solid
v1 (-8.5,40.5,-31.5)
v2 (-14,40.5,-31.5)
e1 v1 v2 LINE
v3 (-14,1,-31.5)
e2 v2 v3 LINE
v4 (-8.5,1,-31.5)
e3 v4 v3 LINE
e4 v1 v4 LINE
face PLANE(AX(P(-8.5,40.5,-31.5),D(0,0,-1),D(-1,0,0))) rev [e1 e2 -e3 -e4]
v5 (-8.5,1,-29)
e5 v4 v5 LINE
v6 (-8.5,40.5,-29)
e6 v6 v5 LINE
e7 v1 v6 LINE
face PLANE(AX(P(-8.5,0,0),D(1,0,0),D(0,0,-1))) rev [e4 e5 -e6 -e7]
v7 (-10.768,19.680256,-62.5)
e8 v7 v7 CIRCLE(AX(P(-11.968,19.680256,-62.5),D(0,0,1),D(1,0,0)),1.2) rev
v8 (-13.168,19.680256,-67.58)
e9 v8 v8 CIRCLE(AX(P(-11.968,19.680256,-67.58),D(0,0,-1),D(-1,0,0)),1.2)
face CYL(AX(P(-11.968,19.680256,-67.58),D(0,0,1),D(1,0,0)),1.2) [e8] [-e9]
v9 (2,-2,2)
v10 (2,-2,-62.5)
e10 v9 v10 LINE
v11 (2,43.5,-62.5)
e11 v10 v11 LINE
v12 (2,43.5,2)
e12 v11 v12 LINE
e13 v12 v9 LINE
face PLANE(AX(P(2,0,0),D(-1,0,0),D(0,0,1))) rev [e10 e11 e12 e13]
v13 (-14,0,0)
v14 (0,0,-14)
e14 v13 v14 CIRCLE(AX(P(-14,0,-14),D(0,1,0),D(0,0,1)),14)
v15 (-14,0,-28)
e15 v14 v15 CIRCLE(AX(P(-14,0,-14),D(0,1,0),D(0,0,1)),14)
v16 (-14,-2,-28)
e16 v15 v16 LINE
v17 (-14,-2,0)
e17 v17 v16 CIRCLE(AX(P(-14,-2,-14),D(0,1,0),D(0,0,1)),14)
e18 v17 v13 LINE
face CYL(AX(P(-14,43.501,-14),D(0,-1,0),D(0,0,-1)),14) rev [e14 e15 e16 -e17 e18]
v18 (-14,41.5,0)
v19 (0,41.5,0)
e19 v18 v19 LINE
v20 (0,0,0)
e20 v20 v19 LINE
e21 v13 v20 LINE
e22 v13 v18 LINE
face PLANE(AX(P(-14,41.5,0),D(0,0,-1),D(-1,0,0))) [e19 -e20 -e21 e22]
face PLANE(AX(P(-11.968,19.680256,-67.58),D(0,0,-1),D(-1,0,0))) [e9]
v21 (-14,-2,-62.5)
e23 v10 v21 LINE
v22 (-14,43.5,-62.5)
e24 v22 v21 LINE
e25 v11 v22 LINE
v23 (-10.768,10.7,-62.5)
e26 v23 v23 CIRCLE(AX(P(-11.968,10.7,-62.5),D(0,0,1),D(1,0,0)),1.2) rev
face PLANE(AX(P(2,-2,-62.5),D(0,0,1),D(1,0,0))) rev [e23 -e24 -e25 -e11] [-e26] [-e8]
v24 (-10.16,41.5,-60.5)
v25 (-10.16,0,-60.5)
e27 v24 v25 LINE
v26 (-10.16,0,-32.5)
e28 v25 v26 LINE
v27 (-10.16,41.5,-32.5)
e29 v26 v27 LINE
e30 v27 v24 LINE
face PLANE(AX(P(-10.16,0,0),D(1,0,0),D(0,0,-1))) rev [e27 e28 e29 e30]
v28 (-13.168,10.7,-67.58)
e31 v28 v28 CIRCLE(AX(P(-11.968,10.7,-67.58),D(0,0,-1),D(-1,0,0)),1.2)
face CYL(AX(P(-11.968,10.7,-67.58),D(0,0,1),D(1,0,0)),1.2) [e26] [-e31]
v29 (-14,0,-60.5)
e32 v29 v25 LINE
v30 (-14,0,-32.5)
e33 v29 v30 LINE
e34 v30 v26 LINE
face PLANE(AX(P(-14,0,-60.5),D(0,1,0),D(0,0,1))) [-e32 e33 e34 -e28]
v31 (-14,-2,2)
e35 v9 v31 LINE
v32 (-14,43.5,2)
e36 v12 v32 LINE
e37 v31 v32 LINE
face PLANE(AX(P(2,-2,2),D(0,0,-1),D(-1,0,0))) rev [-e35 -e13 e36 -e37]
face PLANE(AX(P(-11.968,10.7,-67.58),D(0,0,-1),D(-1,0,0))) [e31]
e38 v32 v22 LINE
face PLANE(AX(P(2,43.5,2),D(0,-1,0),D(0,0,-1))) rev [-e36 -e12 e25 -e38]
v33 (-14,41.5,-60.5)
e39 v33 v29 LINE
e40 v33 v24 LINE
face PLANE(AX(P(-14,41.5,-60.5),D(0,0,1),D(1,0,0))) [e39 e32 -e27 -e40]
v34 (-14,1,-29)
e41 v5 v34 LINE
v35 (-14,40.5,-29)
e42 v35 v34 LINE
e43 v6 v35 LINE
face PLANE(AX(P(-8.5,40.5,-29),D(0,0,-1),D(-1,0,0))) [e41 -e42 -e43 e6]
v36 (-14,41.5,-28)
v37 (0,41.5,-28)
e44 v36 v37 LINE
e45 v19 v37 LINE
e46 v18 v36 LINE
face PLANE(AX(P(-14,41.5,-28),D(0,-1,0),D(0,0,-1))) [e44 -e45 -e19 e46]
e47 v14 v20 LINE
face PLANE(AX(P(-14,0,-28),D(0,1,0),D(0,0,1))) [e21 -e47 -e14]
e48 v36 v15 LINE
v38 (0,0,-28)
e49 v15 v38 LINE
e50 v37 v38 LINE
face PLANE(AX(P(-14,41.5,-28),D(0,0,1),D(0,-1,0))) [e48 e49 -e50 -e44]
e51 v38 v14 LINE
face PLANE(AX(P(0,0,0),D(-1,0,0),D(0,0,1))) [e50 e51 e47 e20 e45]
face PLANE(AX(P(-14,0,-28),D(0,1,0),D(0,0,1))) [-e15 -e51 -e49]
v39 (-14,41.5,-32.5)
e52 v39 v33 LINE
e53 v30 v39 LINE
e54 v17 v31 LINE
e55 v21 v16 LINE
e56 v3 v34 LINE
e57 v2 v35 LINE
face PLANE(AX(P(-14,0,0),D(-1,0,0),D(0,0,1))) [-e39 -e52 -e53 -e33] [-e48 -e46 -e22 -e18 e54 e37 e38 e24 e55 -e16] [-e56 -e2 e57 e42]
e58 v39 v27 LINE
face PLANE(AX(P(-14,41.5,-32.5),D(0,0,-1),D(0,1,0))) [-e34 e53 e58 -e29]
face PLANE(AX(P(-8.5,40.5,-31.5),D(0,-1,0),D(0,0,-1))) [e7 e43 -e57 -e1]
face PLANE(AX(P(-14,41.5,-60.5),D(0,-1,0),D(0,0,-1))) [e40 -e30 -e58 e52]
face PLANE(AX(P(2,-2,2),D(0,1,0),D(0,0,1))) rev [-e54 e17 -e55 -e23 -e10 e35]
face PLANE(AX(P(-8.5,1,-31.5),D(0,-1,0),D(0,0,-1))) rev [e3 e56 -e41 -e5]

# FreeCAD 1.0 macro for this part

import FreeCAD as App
import Part
import Sketcher

V = App.Vector
Q = App.Units.Quantity


def add_polygon(sketch, points):
    """Adds a closed chain of lines whose ends are joined by coincident constraints."""
    first, n = sketch.GeometryCount, len(points)
    for a, b in zip(points, points[1:] + points[:1]):
        sketch.addGeometry(Part.LineSegment(App.Vector(*a, 0), App.Vector(*b, 0)), False)
    for i in range(n):
        sketch.addConstraint(Sketcher.Constraint("Coincident", first + i, 2, first + (i + 1) % n, 1))

doc = App.newDocument("Part")
params = doc.addObject("Spreadsheet::Sheet", "Params")
for row, (alias, value) in enumerate([
    ("sketch1_width", "45.5 mm"),
    ("sketch1_height", "64.5 mm"),
    ("pad1_length", "2 mm"),
    ("sketch2_height", "28 mm"),
    ("sketch2_width", "45.5 mm"),
    ("sketch2_width2", "41.5 mm"),
    ("sketch2_height2", "64.5 mm"),
    ("pad2_length", "14 mm"),
    ("sketch3_diameter", "28 mm"),
    ("sketch4_width", "39.5 mm"),
    ("sketch4_height", "2.5 mm"),
    ("pocket2_length", "5.5 mm"),
    ("sketch5_height", "28 mm"),
    ("sketch5_width", "41.5 mm"),
    ("pad3_length", "10.16 mm"),
    ("sketch6_diameter", "2.4 mm"),
    ("pad4_length", "5.08 mm"),
], start=1):
    params.set(f"A{row}", alias)
    params.set(f"B{row}", "=" + value)
    params.setAlias(f"B{row}", alias)

body = doc.addObject("PartDesign::Body", "Body")

sketch1 = body.newObject("Sketcher::SketchObject", "Sketch")
sketch1.AttachmentSupport = (doc.getObject("YZ_Plane"), [""])
sketch1.MapMode = "FlatFace"
add_polygon(sketch1, [(43.5, 2), (-2, 2), (-2, -62.5), (43.5, -62.5)])
sketch1.addConstraint(Sketcher.Constraint("Horizontal", 0))
sketch1.addConstraint(Sketcher.Constraint("Vertical", 1))
sketch1.addConstraint(Sketcher.Constraint("Horizontal", 2))
sketch1.addConstraint(Sketcher.Constraint("Vertical", 3))
sketch1.addConstraint(Sketcher.Constraint("DistanceX", 0, 2, 0, 1, Q("45.5 mm")))
sketch1.addConstraint(Sketcher.Constraint("DistanceY", 1, 2, 1, 1, Q("64.5 mm")))
sketch1.addConstraint(Sketcher.Constraint("DistanceX", 0, 2, -1, 1, Q("2 mm")))
sketch1.addConstraint(Sketcher.Constraint("DistanceY", -1, 1, 0, 2, Q("2 mm")))
sketch1.setExpression("Constraints[8]", "Params.sketch1_width")
sketch1.setExpression("Constraints[9]", "Params.sketch1_height")
pad1 = body.newObject("PartDesign::Pad", "Pad")
pad1.Profile = sketch1
pad1.setExpression("Length", "Params.pad1_length")

sketch2 = body.newObject("Sketcher::SketchObject", "Sketch001")
sketch2.AttachmentSupport = (doc.getObject("YZ_Plane"), [""])
sketch2.MapMode = "FlatFace"
add_polygon(sketch2, [(43.5, -62.5), (-2, -62.5), (-2, 2), (43.5, 2)])
add_polygon(sketch2, [(0, -32.5), (0, -60.5), (41.5, -60.5), (41.5, -32.5)])
add_polygon(sketch2, [(0, 0), (0, -28), (41.5, -28), (41.5, 0)])
sketch2.addConstraint(Sketcher.Constraint("Horizontal", 0))
sketch2.addConstraint(Sketcher.Constraint("Vertical", 1))
sketch2.addConstraint(Sketcher.Constraint("Horizontal", 2))
sketch2.addConstraint(Sketcher.Constraint("Vertical", 3))
sketch2.addConstraint(Sketcher.Constraint("Vertical", 4))
sketch2.addConstraint(Sketcher.Constraint("Horizontal", 5))
sketch2.addConstraint(Sketcher.Constraint("Vertical", 6))
sketch2.addConstraint(Sketcher.Constraint("Horizontal", 7))
sketch2.addConstraint(Sketcher.Constraint("Vertical", 8))
sketch2.addConstraint(Sketcher.Constraint("Horizontal", 9))
sketch2.addConstraint(Sketcher.Constraint("Vertical", 10))
sketch2.addConstraint(Sketcher.Constraint("Horizontal", 11))
sketch2.addConstraint(Sketcher.Constraint("Coincident", 11, 2, -1, 1))
sketch2.addConstraint(Sketcher.Constraint("PointOnObject", 4, 2, -2))
sketch2.addConstraint(Sketcher.Constraint("Vertical", 6, 2, 9, 2))
sketch2.addConstraint(Sketcher.Constraint("Equal", 6, 8))
sketch2.addConstraint(Sketcher.Constraint("DistanceY", 4, 2, 4, 1, Q("28 mm")))
sketch2.addConstraint(Sketcher.Constraint("DistanceX", 0, 2, 0, 1, Q("45.5 mm")))
sketch2.addConstraint(Sketcher.Constraint("DistanceX", 5, 1, 5, 2, Q("41.5 mm")))
sketch2.addConstraint(Sketcher.Constraint("DistanceY", 1, 1, 1, 2, Q("64.5 mm")))
sketch2.addConstraint(Sketcher.Constraint("DistanceX", 0, 2, -1, 1, Q("2 mm")))
sketch2.addConstraint(Sketcher.Constraint("DistanceY", -1, 1, 1, 2, Q("2 mm")))
sketch2.addConstraint(Sketcher.Constraint("DistanceY", 0, 2, 4, 2, Q("2 mm")))
sketch2.setExpression("Constraints[28]", "Params.sketch2_height")
sketch2.setExpression("Constraints[29]", "Params.sketch2_width")
sketch2.setExpression("Constraints[30]", "Params.sketch2_width2")
sketch2.setExpression("Constraints[31]", "Params.sketch2_height2")
pad2 = body.newObject("PartDesign::Pad", "Pad001")
pad2.Profile = sketch2
pad2.setExpression("Length", "Params.pad2_length")
pad2.Reversed = True

sketch3 = body.newObject("Sketcher::SketchObject", "Sketch002")
sketch3.AttachmentSupport = (doc.getObject("XZ_Plane"), [""])
sketch3.MapMode = "FlatFace"
sketch3.AttachmentOffset = App.Placement(V(0, 0, 2), App.Rotation())
sketch3.addGeometry(Part.Circle(V(-14, -14, 0), V(0, 0, 1), 14), False)
sketch3.addConstraint(Sketcher.Constraint("Diameter", 0, Q("28 mm")))
sketch3.addConstraint(Sketcher.Constraint("DistanceX", 0, 3, -1, 1, Q("14 mm")))
sketch3.addConstraint(Sketcher.Constraint("DistanceY", 0, 3, -1, 1, Q("14 mm")))
sketch3.setExpression("Constraints[0]", "Params.sketch3_diameter")
pocket1 = body.newObject("PartDesign::Pocket", "Pocket")
pocket1.Profile = sketch3
pocket1.Type = "UpToFirst"

sketch4 = body.newObject("Sketcher::SketchObject", "Sketch003")
sketch4.AttachmentSupport = (doc.getObject("YZ_Plane"), [""])
sketch4.MapMode = "FlatFace"
sketch4.AttachmentOffset = App.Placement(V(0, 0, -14), App.Rotation())
add_polygon(sketch4, [(40.5, -31.5), (1, -31.5), (1, -29), (40.5, -29)])
sketch4.addConstraint(Sketcher.Constraint("Horizontal", 0))
sketch4.addConstraint(Sketcher.Constraint("Vertical", 1))
sketch4.addConstraint(Sketcher.Constraint("Horizontal", 2))
sketch4.addConstraint(Sketcher.Constraint("Vertical", 3))
sketch4.addConstraint(Sketcher.Constraint("DistanceX", 0, 2, 0, 1, Q("39.5 mm")))
sketch4.addConstraint(Sketcher.Constraint("DistanceY", 1, 1, 1, 2, Q("2.5 mm")))
sketch4.addConstraint(Sketcher.Constraint("DistanceX", -1, 1, 0, 2, Q("1 mm")))
sketch4.addConstraint(Sketcher.Constraint("DistanceY", 1, 2, -1, 1, Q("29 mm")))
sketch4.setExpression("Constraints[8]", "Params.sketch4_width")
sketch4.setExpression("Constraints[9]", "Params.sketch4_height")
pocket2 = body.newObject("PartDesign::Pocket", "Pocket001")
pocket2.Profile = sketch4
pocket2.setExpression("Length", "Params.pocket2_length")
pocket2.Reversed = True

sketch5 = body.newObject("Sketcher::SketchObject", "Sketch004")
sketch5.AttachmentSupport = (doc.getObject("YZ_Plane"), [""])
sketch5.MapMode = "FlatFace"
add_polygon(sketch5, [(41.5, -60.5), (0, -60.5), (0, -32.5), (41.5, -32.5)])
sketch5.addConstraint(Sketcher.Constraint("Horizontal", 0))
sketch5.addConstraint(Sketcher.Constraint("Vertical", 1))
sketch5.addConstraint(Sketcher.Constraint("Horizontal", 2))
sketch5.addConstraint(Sketcher.Constraint("Vertical", 3))
sketch5.addConstraint(Sketcher.Constraint("PointOnObject", 0, 2, -2))
sketch5.addConstraint(Sketcher.Constraint("DistanceY", 1, 1, 1, 2, Q("28 mm")))
sketch5.addConstraint(Sketcher.Constraint("DistanceX", 0, 2, 0, 1, Q("41.5 mm")))
sketch5.addConstraint(Sketcher.Constraint("DistanceY", 0, 2, -1, 1, Q("60.5 mm")))
sketch5.setExpression("Constraints[9]", "Params.sketch5_height")
sketch5.setExpression("Constraints[10]", "Params.sketch5_width")
pad3 = body.newObject("PartDesign::Pad", "Pad002")
pad3.Profile = sketch5
pad3.setExpression("Length", "Params.pad3_length")
pad3.Reversed = True

sketch6 = body.newObject("Sketcher::SketchObject", "Sketch005")
sketch6.AttachmentSupport = (doc.getObject("XY_Plane"), [""])
sketch6.MapMode = "FlatFace"
sketch6.AttachmentOffset = App.Placement(V(0, 0, -62.5), App.Rotation())
sketch6.addGeometry(Part.Circle(V(-11.968, 10.7, 0), V(0, 0, 1), 1.2), False)
sketch6.addGeometry(Part.Circle(V(-11.968, 19.680256, 0), V(0, 0, 1), 1.2), False)
sketch6.addConstraint(Sketcher.Constraint("Equal", 0, 1))
sketch6.addConstraint(Sketcher.Constraint("Vertical", 0, 3, 1, 3))
sketch6.addConstraint(Sketcher.Constraint("Diameter", 0, Q("2.4 mm")))
sketch6.addConstraint(Sketcher.Constraint("DistanceY", -1, 1, 0, 3, Q("10.7 mm")))
sketch6.addConstraint(Sketcher.Constraint("DistanceX", 0, 3, -1, 1, Q("11.968 mm")))
sketch6.addConstraint(Sketcher.Constraint("DistanceY", -1, 1, 1, 3, Q("19.680256 mm")))
sketch6.setExpression("Constraints[2]", "Params.sketch6_diameter")
pad4 = body.newObject("PartDesign::Pad", "Pad003")
pad4.Profile = sketch6
pad4.setExpression("Length", "Params.pad4_length")
pad4.Reversed = True

doc.recompute()
